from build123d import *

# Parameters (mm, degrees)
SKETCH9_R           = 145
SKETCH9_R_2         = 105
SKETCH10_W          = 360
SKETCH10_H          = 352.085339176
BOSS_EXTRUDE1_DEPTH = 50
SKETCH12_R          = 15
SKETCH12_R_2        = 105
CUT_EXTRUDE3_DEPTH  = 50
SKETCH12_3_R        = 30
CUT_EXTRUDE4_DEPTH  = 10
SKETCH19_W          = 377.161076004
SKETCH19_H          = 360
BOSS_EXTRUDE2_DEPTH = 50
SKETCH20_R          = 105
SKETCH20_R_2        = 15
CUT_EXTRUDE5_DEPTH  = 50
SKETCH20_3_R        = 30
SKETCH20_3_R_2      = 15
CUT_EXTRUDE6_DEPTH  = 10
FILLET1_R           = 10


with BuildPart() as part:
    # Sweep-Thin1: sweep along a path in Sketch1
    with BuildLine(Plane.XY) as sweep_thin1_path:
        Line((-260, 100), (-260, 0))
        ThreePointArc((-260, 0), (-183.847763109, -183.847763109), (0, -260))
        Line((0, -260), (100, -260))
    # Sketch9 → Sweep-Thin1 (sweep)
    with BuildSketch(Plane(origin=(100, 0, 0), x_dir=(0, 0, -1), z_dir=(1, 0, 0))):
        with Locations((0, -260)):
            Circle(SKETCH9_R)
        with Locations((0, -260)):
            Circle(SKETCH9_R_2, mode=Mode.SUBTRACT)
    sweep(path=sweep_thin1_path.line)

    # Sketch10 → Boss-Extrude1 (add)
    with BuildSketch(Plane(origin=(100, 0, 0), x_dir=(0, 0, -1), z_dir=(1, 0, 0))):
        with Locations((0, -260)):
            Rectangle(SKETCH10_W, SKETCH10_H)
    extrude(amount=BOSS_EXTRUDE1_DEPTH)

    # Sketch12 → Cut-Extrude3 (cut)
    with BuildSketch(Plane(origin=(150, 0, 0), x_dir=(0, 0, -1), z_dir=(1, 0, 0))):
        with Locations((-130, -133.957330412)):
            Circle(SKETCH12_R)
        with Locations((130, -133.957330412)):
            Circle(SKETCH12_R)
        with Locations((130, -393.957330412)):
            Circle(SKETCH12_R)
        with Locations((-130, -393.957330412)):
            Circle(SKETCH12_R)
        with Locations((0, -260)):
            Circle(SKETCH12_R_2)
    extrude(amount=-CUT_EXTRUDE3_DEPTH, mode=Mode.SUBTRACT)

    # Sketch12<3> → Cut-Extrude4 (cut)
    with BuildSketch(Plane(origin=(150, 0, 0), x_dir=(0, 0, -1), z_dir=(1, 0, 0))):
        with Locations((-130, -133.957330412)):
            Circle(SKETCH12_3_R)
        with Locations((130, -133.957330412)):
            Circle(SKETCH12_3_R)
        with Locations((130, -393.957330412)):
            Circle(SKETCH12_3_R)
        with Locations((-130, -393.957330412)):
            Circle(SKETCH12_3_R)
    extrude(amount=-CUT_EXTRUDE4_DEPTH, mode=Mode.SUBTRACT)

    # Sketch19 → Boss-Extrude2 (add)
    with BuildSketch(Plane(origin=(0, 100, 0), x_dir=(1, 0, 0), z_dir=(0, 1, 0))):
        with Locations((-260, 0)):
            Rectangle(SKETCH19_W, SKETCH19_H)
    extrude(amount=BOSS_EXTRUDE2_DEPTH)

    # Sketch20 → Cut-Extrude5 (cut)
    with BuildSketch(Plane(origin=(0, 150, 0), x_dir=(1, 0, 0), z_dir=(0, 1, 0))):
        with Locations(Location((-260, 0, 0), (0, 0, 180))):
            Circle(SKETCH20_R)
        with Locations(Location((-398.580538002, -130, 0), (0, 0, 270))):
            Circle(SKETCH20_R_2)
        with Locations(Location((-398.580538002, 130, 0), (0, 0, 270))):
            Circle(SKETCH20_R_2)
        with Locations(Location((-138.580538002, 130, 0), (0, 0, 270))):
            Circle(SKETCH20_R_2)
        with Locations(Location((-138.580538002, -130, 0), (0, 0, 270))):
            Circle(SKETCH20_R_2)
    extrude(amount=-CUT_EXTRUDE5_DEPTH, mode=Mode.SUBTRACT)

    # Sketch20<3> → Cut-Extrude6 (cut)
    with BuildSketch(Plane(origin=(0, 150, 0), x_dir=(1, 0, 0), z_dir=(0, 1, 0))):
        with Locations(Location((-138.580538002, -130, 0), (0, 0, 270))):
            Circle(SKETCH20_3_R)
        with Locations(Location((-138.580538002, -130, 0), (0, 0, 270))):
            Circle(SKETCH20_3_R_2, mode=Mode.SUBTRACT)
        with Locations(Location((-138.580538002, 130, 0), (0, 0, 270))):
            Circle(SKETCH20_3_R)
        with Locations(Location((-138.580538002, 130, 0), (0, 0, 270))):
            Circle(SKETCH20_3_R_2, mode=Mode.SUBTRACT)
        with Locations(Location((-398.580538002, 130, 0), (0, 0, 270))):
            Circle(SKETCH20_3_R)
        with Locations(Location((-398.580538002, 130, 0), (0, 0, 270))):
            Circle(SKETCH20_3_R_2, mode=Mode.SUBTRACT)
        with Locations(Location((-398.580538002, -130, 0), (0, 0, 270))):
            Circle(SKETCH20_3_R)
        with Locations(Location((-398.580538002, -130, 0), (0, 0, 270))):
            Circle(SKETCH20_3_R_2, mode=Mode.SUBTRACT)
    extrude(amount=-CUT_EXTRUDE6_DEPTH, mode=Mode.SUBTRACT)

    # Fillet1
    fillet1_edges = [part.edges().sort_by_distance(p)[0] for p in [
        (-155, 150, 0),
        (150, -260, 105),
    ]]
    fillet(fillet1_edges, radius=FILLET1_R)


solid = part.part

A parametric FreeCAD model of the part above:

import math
import FreeCAD as App
import Part
import Sketcher
from FreeCAD import Vector


def edges_at(feature, points):
    """Names of the edges that pass closest to the given points."""
    edges = feature.Shape.Edges
    near = lambda p: min(range(len(edges)), key=lambda i: edges[i].distToShape(Part.Vertex(*p))[0])
    return sorted({f"Edge{near(p) + 1}" for p in points})

doc = App.newDocument("Part")
body = doc.addObject("PartDesign::Body", "Body")

# Sketch on YZ plane
sketch1 = body.newObject("Sketcher::SketchObject", "Sketch")
sketch1.AttachmentSupport = (doc.getObject("YZ_Plane"), [""])
sketch1.MapMode = "FlatFace"
sketch1.AttachmentOffset = App.Placement(Vector(0, 0, 100), App.Rotation())
sketch1.addGeometry(Part.Circle(Vector(-260, 0, 0), Vector(0, 0, 1), 145), False)
sketch1.addGeometry(Part.Circle(Vector(-260, 0, 0), Vector(0, 0, 1), 105), False)
sketch1.addConstraint(Sketcher.Constraint("Coincident", 1, 3, 0, 3))
sketch1.addConstraint(Sketcher.Constraint("PointOnObject", 0, 3, -1))
sketch1.addConstraint(Sketcher.Constraint("Diameter", 0, 290.0))
sketch1.addConstraint(Sketcher.Constraint("Diameter", 1, 210.0))
sketch1.addConstraint(Sketcher.Constraint("DistanceX", 0, 3, -1, 1, 260.0))

# Sketch on XY plane
sketch2 = body.newObject("Sketcher::SketchObject", "Sketch001")
sketch2.AttachmentSupport = (doc.getObject("XY_Plane"), [""])
sketch2.MapMode = "FlatFace"
sketch2.addGeometry(Part.LineSegment(Vector(-260, 100, 0), Vector(-260, 0, 0)), False)
sketch2.addGeometry(Part.ArcOfCircle(Part.Circle(Vector(0, 0, 0), Vector(0, 0, 1), 260), math.radians(180), math.radians(270)), False)
sketch2.addGeometry(Part.LineSegment(Vector(0, -260, 0), Vector(100, -260, 0)), False)
sketch2.addConstraint(Sketcher.Constraint("Tangent", 0, 2, 1, 1))
sketch2.addConstraint(Sketcher.Constraint("Tangent", 1, 2, 2, 1))
sketch2.addConstraint(Sketcher.Constraint("Vertical", 0))
sketch2.addConstraint(Sketcher.Constraint("Horizontal", 2))
sketch2.addConstraint(Sketcher.Constraint("Coincident", 1, 3, -1, 1))
sketch2.addConstraint(Sketcher.Constraint("Equal", 2, 0))
sketch2.addConstraint(Sketcher.Constraint("Radius", 1, 260.0))
sketch2.addConstraint(Sketcher.Constraint("DistanceX", 2, 1, 2, 2, 100.0))
doc.recompute()

additivepipe = body.newObject("PartDesign::AdditivePipe", "AdditivePipe")
additivepipe.Profile = sketch1
additivepipe.Spine = (sketch2, ["Edge1", "Edge2", "Edge3"])

# Sketch on YZ plane
sketch3 = body.newObject("Sketcher::SketchObject", "Sketch002")
sketch3.AttachmentSupport = (doc.getObject("YZ_Plane"), [""])
sketch3.MapMode = "FlatFace"
sketch3.AttachmentOffset = App.Placement(Vector(0, 0, 100), App.Rotation())
sketch3.addGeometry(Part.LineSegment(Vector(-84, 180, 0), Vector(-436, 180, 0)), False)
sketch3.addGeometry(Part.LineSegment(Vector(-436, 180, 0), Vector(-436, -180, 0)), False)
sketch3.addGeometry(Part.LineSegment(Vector(-436, -180, 0), Vector(-84, -180, 0)), False)
sketch3.addGeometry(Part.LineSegment(Vector(-84, -180, 0), Vector(-84, 180, 0)), False)
sketch3.addConstraint(Sketcher.Constraint("Coincident", 0, 2, 1, 1))
sketch3.addConstraint(Sketcher.Constraint("Coincident", 1, 2, 2, 1))
sketch3.addConstraint(Sketcher.Constraint("Coincident", 2, 2, 3, 1))
sketch3.addConstraint(Sketcher.Constraint("Coincident", 3, 2, 0, 1))
sketch3.addConstraint(Sketcher.Constraint("Horizontal", 0))
sketch3.addConstraint(Sketcher.Constraint("Vertical", 1))
sketch3.addConstraint(Sketcher.Constraint("Horizontal", 2))
sketch3.addConstraint(Sketcher.Constraint("Vertical", 3))
sketch3.addConstraint(Sketcher.Constraint("DistanceY", 1, 2, 1, 1, 360.0))
sketch3.addConstraint(Sketcher.Constraint("DistanceY", -1, 1, 0, 2, 180.0))
sketch3.addConstraint(Sketcher.Constraint("DistanceX", 0, 2, 0, 1, 352.085339))
sketch3.addConstraint(Sketcher.Constraint("DistanceX", 0, 2, -1, 1, 436.04267))
pad1 = body.newObject("PartDesign::Pad", "Pad")
pad1.Profile = sketch3
pad1.Length = 50

# Sketch on YZ plane
sketch4 = body.newObject("Sketcher::SketchObject", "Sketch003")
sketch4.AttachmentSupport = (doc.getObject("YZ_Plane"), [""])
sketch4.MapMode = "FlatFace"
sketch4.AttachmentOffset = App.Placement(Vector(0, 0, 150), App.Rotation())
sketch4.addGeometry(Part.Circle(Vector(-134, 130, 0), Vector(0, 0, 1), 15), False)
sketch4.addGeometry(Part.Circle(Vector(-134, -130, 0), Vector(0, 0, 1), 15), False)
sketch4.addGeometry(Part.Circle(Vector(-394, -130, 0), Vector(0, 0, 1), 15), False)
sketch4.addGeometry(Part.Circle(Vector(-394, 130, 0), Vector(0, 0, 1), 15), False)
sketch4.addGeometry(Part.Circle(Vector(-260, 0, 0), Vector(0, 0, 1), 105), False)
sketch4.addConstraint(Sketcher.Constraint("Equal", 0, 1))
sketch4.addConstraint(Sketcher.Constraint("Equal", 1, 2))
sketch4.addConstraint(Sketcher.Constraint("Equal", 2, 3))
sketch4.addConstraint(Sketcher.Constraint("Symmetric", 0, 3, 1, 3, -1))
sketch4.addConstraint(Sketcher.Constraint("Symmetric", 2, 3, 3, 3, -1))
sketch4.addConstraint(Sketcher.Constraint("PointOnObject", 4, 3, -1))
sketch4.addConstraint(Sketcher.Constraint("Horizontal", 1, 3, 2, 3))
sketch4.addConstraint(Sketcher.Constraint("Diameter", 0, 30.0))
sketch4.addConstraint(Sketcher.Constraint("Diameter", 4, 210.0))
sketch4.addConstraint(Sketcher.Constraint("DistanceY", -1, 1, 0, 3, 130.0))
sketch4.addConstraint(Sketcher.Constraint("DistanceX", 4, 3, -1, 1, 260.0))
sketch4.addConstraint(Sketcher.Constraint("DistanceX", 2, 3, 1, 3, 260.0))
sketch4.addConstraint(Sketcher.Constraint("DistanceX", 0, 3, -1, 1, 133.95733))
pocket1 = body.newObject("PartDesign::Pocket", "Pocket")
pocket1.Profile = sketch4
pocket1.Length = 50

# Sketch on YZ plane
sketch5 = body.newObject("Sketcher::SketchObject", "Sketch004")
sketch5.AttachmentSupport = (doc.getObject("YZ_Plane"), [""])
sketch5.MapMode = "FlatFace"
sketch5.AttachmentOffset = App.Placement(Vector(0, 0, 150), App.Rotation())
sketch5.addGeometry(Part.Circle(Vector(-134, 130, 0), Vector(0, 0, 1), 30), False)
sketch5.addGeometry(Part.Circle(Vector(-134, -130, 0), Vector(0, 0, 1), 30), False)
sketch5.addGeometry(Part.Circle(Vector(-394, -130, 0), Vector(0, 0, 1), 30), False)
sketch5.addGeometry(Part.Circle(Vector(-394, 130, 0), Vector(0, 0, 1), 30), False)
sketch5.addConstraint(Sketcher.Constraint("Equal", 0, 1))
sketch5.addConstraint(Sketcher.Constraint("Equal", 1, 2))
sketch5.addConstraint(Sketcher.Constraint("Equal", 2, 3))
sketch5.addConstraint(Sketcher.Constraint("Symmetric", 0, 3, 1, 3, -1))
sketch5.addConstraint(Sketcher.Constraint("Symmetric", 2, 3, 3, 3, -1))
sketch5.addConstraint(Sketcher.Constraint("Horizontal", 1, 3, 2, 3))
sketch5.addConstraint(Sketcher.Constraint("Diameter", 0, 60.0))
sketch5.addConstraint(Sketcher.Constraint("DistanceY", -1, 1, 0, 3, 130.0))
sketch5.addConstraint(Sketcher.Constraint("DistanceX", 2, 3, 1, 3, 260.0))
sketch5.addConstraint(Sketcher.Constraint("DistanceX", 0, 3, -1, 1, 133.95733))
pocket2 = body.newObject("PartDesign::Pocket", "Pocket001")
pocket2.Profile = sketch5
pocket2.Length = 10

# Sketch on XZ plane
sketch6 = body.newObject("Sketcher::SketchObject", "Sketch005")
sketch6.AttachmentSupport = (doc.getObject("XZ_Plane"), [""])
sketch6.MapMode = "FlatFace"
sketch6.AttachmentOffset = App.Placement(Vector(0, 0, -100), App.Rotation())
sketch6.addGeometry(Part.LineSegment(Vector(-449, -180, 0), Vector(-449, 180, 0)), False)
sketch6.addGeometry(Part.LineSegment(Vector(-449, 180, 0), Vector(-71, 180, 0)), False)
sketch6.addGeometry(Part.LineSegment(Vector(-71, 180, 0), Vector(-71, -180, 0)), False)
sketch6.addGeometry(Part.LineSegment(Vector(-71, -180, 0), Vector(-449, -180, 0)), False)
sketch6.addConstraint(Sketcher.Constraint("Coincident", 0, 2, 1, 1))
sketch6.addConstraint(Sketcher.Constraint("Coincident", 1, 2, 2, 1))
sketch6.addConstraint(Sketcher.Constraint("Coincident", 2, 2, 3, 1))
sketch6.addConstraint(Sketcher.Constraint("Coincident", 3, 2, 0, 1))
sketch6.addConstraint(Sketcher.Constraint("Vertical", 0))
sketch6.addConstraint(Sketcher.Constraint("Horizontal", 1))
sketch6.addConstraint(Sketcher.Constraint("Vertical", 2))
sketch6.addConstraint(Sketcher.Constraint("Horizontal", 3))
sketch6.addConstraint(Sketcher.Constraint("DistanceY", 0, 1, 0, 2, 360.0))
sketch6.addConstraint(Sketcher.Constraint("DistanceY", -1, 1, 0, 2, 180.0))
sketch6.addConstraint(Sketcher.Constraint("DistanceX", 1, 1, 1, 2, 377.161076))
sketch6.addConstraint(Sketcher.Constraint("DistanceX", 0, 2, -1, 1, 448.580538))
pad2 = body.newObject("PartDesign::Pad", "Pad001")
pad2.Profile = sketch6
pad2.Length = 50
pad2.Reversed = True

# Sketch on XZ plane
sketch7 = body.newObject("Sketcher::SketchObject", "Sketch006")
sketch7.AttachmentSupport = (doc.getObject("XZ_Plane"), [""])
sketch7.MapMode = "FlatFace"
sketch7.AttachmentOffset = App.Placement(Vector(0, 0, -150), App.Rotation())
sketch7.addGeometry(Part.Circle(Vector(-260, 0, 0), Vector(0, 0, 1), 105), False)
sketch7.addGeometry(Part.Circle(Vector(-399, 130, 0), Vector(0, 0, 1), 15), False)
sketch7.addGeometry(Part.Circle(Vector(-399, -130, 0), Vector(0, 0, 1), 15), False)
sketch7.addGeometry(Part.Circle(Vector(-139, -130, 0), Vector(0, 0, 1), 15), False)
sketch7.addGeometry(Part.Circle(Vector(-139, 130, 0), Vector(0, 0, 1), 15), False)
sketch7.addConstraint(Sketcher.Constraint("Equal", 1, 2))
sketch7.addConstraint(Sketcher.Constraint("Equal", 2, 3))
sketch7.addConstraint(Sketcher.Constraint("Equal", 3, 4))
sketch7.addConstraint(Sketcher.Constraint("Symmetric", 1, 3, 2, 3, -1))
sketch7.addConstraint(Sketcher.Constraint("Symmetric", 3, 3, 4, 3, -1))
sketch7.addConstraint(Sketcher.Constraint("PointOnObject", 0, 3, -1))
sketch7.addConstraint(Sketcher.Constraint("Horizontal", 2, 3, 3, 3))
sketch7.addConstraint(Sketcher.Constraint("Diameter", 0, 210.0))
sketch7.addConstraint(Sketcher.Constraint("Diameter", 1, 30.0))
sketch7.addConstraint(Sketcher.Constraint("DistanceX", 0, 3, -1, 1, 260.0))
sketch7.addConstraint(Sketcher.Constraint("DistanceY", -1, 1, 1, 3, 130.0))
sketch7.addConstraint(Sketcher.Constraint("DistanceX", 2, 3, 3, 3, 260.0))
sketch7.addConstraint(Sketcher.Constraint("DistanceX", 1, 3, -1, 1, 398.580538))
pocket3 = body.newObject("PartDesign::Pocket", "Pocket002")
pocket3.Profile = sketch7
pocket3.Length = 50
pocket3.Reversed = True

# Sketch on XZ plane
sketch8 = body.newObject("Sketcher::SketchObject", "Sketch007")
sketch8.AttachmentSupport = (doc.getObject("XZ_Plane"), [""])
sketch8.MapMode = "FlatFace"
sketch8.AttachmentOffset = App.Placement(Vector(0, 0, -150), App.Rotation())
sketch8.addGeometry(Part.Circle(Vector(-139, 130, 0), Vector(0, 0, 1), 30), False)
sketch8.addGeometry(Part.Circle(Vector(-139, 130, 0), Vector(0, 0, 1), 15), False)
sketch8.addGeometry(Part.Circle(Vector(-139, -130, 0), Vector(0, 0, 1), 30), False)
sketch8.addGeometry(Part.Circle(Vector(-139, -130, 0), Vector(0, 0, 1), 15), False)
sketch8.addGeometry(Part.Circle(Vector(-399, -130, 0), Vector(0, 0, 1), 30), False)
sketch8.addGeometry(Part.Circle(Vector(-399, -130, 0), Vector(0, 0, 1), 15), False)
sketch8.addGeometry(Part.Circle(Vector(-399, 130, 0), Vector(0, 0, 1), 30), False)
sketch8.addGeometry(Part.Circle(Vector(-399, 130, 0), Vector(0, 0, 1), 15), False)
sketch8.addConstraint(Sketcher.Constraint("Coincident", 1, 3, 0, 3))
sketch8.addConstraint(Sketcher.Constraint("Coincident", 3, 3, 2, 3))
sketch8.addConstraint(Sketcher.Constraint("Coincident", 5, 3, 4, 3))
sketch8.addConstraint(Sketcher.Constraint("Coincident", 7, 3, 6, 3))
sketch8.addConstraint(Sketcher.Constraint("Equal", 0, 2))
sketch8.addConstraint(Sketcher.Constraint("Equal", 1, 3))
sketch8.addConstraint(Sketcher.Constraint("Equal", 2, 4))
sketch8.addConstraint(Sketcher.Constraint("Equal", 3, 5))
sketch8.addConstraint(Sketcher.Constraint("Equal", 4, 6))
sketch8.addConstraint(Sketcher.Constraint("Equal", 5, 7))
sketch8.addConstraint(Sketcher.Constraint("Symmetric", 0, 3, 2, 3, -1))
sketch8.addConstraint(Sketcher.Constraint("Symmetric", 4, 3, 6, 3, -1))
sketch8.addConstraint(Sketcher.Constraint("Horizontal", 3, 3, 4, 3))
sketch8.addConstraint(Sketcher.Constraint("Diameter", 0, 60.0))
sketch8.addConstraint(Sketcher.Constraint("Diameter", 1, 30.0))
sketch8.addConstraint(Sketcher.Constraint("DistanceY", -1, 1, 0, 3, 130.0))
sketch8.addConstraint(Sketcher.Constraint("DistanceX", 4, 3, 2, 3, 260.0))
sketch8.addConstraint(Sketcher.Constraint("DistanceX", 0, 3, -1, 1, 138.580538))
pocket4 = body.newObject("PartDesign::Pocket", "Pocket003")
pocket4.Profile = sketch8
pocket4.Length = 10
pocket4.Reversed = True
doc.recompute()

fillet = body.newObject("PartDesign::Fillet", "Fillet")
fillet.Base = (pocket4, edges_at(pocket4, [(-155, 150, 0), (150, -260, 105)]))
fillet.Radius = 10

doc.recompute()
